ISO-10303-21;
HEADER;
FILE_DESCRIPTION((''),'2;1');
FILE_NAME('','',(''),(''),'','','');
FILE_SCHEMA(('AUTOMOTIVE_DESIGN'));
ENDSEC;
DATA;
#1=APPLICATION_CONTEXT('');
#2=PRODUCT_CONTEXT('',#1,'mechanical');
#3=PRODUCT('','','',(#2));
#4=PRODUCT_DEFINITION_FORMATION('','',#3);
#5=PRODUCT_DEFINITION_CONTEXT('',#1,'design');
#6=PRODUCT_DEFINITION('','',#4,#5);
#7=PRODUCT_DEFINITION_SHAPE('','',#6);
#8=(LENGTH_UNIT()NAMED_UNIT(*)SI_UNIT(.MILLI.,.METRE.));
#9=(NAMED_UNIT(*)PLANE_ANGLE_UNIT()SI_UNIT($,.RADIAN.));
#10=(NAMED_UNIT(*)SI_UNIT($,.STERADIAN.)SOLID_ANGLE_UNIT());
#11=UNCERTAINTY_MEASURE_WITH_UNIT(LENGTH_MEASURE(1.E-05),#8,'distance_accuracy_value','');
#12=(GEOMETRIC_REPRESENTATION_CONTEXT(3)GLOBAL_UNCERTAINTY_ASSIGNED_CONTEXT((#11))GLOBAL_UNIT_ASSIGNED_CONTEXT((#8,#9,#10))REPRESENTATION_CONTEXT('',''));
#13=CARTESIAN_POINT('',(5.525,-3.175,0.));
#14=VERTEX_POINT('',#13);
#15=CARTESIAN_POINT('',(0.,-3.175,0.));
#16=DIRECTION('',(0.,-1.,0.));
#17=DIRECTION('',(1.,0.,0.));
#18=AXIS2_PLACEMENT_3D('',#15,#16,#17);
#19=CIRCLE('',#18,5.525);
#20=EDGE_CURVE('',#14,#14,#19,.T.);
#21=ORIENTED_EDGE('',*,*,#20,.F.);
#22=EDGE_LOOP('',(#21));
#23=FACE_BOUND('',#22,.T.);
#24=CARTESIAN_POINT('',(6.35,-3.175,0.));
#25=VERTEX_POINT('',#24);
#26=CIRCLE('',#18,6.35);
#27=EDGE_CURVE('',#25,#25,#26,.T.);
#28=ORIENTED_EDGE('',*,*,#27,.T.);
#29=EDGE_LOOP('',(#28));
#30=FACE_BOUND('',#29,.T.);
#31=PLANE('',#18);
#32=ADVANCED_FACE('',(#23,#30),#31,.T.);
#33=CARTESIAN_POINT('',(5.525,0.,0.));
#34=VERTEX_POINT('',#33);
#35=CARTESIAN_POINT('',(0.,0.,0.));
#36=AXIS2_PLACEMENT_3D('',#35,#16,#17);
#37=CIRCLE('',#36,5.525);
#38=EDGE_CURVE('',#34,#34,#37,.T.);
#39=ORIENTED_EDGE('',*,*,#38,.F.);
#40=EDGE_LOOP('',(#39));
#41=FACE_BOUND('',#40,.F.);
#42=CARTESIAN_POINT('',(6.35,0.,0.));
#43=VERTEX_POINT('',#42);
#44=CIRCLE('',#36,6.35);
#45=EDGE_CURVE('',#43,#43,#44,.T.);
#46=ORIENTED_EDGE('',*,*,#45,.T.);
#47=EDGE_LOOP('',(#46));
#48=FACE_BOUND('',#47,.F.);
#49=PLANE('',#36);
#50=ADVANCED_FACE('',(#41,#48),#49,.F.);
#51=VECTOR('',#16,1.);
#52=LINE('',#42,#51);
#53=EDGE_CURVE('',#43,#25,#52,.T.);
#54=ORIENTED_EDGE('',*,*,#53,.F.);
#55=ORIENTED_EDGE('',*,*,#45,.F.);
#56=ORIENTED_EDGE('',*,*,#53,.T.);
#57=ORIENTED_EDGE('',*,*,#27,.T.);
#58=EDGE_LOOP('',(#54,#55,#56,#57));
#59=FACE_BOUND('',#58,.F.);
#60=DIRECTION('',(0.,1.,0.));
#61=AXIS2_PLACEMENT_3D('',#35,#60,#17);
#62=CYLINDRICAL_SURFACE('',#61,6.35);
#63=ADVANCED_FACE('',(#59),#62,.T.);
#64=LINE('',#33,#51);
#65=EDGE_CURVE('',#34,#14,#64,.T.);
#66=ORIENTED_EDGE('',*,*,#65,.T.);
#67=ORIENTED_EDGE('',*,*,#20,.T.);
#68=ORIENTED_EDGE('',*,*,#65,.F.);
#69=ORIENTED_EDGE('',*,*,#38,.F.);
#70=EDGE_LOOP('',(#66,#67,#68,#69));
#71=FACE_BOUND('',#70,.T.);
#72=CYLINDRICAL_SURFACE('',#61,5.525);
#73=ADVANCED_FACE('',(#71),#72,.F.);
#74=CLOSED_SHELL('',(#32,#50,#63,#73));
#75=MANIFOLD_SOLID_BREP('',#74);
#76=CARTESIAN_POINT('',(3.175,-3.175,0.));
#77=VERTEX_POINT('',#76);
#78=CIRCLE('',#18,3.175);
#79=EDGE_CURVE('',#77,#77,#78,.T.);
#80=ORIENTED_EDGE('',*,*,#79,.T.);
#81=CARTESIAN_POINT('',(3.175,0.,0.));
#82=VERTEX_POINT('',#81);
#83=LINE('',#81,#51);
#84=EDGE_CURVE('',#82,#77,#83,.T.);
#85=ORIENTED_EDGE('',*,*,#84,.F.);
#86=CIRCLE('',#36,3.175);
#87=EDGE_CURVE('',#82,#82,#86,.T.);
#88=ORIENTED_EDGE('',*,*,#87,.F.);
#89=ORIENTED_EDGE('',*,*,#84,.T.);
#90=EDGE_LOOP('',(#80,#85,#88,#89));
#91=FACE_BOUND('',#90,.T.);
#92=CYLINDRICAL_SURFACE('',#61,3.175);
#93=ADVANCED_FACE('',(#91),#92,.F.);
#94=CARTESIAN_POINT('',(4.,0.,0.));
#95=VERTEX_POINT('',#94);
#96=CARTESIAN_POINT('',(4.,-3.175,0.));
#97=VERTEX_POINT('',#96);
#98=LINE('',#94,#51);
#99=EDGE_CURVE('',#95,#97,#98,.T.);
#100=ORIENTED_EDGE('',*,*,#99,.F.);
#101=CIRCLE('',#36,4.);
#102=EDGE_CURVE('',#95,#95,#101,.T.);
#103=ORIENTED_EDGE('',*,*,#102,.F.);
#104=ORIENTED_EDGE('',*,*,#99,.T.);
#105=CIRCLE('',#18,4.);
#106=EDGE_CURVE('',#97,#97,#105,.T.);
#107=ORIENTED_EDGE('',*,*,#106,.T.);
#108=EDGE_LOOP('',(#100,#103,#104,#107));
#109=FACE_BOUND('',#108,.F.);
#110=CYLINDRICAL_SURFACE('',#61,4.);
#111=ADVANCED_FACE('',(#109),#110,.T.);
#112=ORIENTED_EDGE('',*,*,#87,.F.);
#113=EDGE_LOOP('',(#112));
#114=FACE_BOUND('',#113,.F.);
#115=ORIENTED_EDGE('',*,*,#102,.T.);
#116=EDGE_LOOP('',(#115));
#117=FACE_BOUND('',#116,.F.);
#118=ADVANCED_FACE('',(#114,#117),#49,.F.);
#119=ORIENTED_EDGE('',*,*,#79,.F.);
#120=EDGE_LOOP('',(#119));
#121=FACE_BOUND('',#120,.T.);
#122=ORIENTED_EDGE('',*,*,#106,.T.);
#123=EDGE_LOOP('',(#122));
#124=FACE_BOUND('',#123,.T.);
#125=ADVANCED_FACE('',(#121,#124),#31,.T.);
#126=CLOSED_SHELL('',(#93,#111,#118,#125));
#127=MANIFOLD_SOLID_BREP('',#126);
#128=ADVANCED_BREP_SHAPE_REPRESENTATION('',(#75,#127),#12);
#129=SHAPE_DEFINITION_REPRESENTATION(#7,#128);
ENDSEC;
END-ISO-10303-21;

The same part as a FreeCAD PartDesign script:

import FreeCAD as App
import Part
import Sketcher

V = App.Vector
Q = App.Units.Quantity

doc = App.newDocument("Part")
body = doc.addObject("PartDesign::Body", "Body")
body.AllowCompound = True

# Sketch on XZ plane
sketch1 = body.newObject("Sketcher::SketchObject", "Sketch")
sketch1.AttachmentSupport = (doc.getObject("XZ_Plane"), [""])
sketch1.MapMode = "FlatFace"
sketch1.addGeometry([
    Part.Circle(V(0, 0, 0), V(0, 0, 1), 6.3),
    Part.Circle(V(0, 0, 0), V(0, 0, 1), 5.5),
    Part.Circle(V(0, 0, 0), V(0, 0, 1), 4),
    Part.Circle(V(0, 0, 0), V(0, 0, 1), 3.2),
], False)
sketch1.addConstraint([
    Sketcher.Constraint("Coincident", 0, 3, -1, 1),
    Sketcher.Constraint("Coincident", 1, 3, -1, 1),
    Sketcher.Constraint("Coincident", 2, 3, -1, 1),
    Sketcher.Constraint("Coincident", 3, 3, -1, 1),
    Sketcher.Constraint("Diameter", 0, Q("0.5 in")),
    Sketcher.Constraint("Diameter", 3, Q("0.25 in")),
    Sketcher.Constraint("Diameter", 1, Q("11.05 mm")),
    Sketcher.Constraint("Diameter", 2, Q("8 mm")),
])
pad1 = body.newObject("PartDesign::Pad", "Pad")
pad1.Profile = sketch1
pad1.Length = Q("0.125 in")

doc.recompute()
